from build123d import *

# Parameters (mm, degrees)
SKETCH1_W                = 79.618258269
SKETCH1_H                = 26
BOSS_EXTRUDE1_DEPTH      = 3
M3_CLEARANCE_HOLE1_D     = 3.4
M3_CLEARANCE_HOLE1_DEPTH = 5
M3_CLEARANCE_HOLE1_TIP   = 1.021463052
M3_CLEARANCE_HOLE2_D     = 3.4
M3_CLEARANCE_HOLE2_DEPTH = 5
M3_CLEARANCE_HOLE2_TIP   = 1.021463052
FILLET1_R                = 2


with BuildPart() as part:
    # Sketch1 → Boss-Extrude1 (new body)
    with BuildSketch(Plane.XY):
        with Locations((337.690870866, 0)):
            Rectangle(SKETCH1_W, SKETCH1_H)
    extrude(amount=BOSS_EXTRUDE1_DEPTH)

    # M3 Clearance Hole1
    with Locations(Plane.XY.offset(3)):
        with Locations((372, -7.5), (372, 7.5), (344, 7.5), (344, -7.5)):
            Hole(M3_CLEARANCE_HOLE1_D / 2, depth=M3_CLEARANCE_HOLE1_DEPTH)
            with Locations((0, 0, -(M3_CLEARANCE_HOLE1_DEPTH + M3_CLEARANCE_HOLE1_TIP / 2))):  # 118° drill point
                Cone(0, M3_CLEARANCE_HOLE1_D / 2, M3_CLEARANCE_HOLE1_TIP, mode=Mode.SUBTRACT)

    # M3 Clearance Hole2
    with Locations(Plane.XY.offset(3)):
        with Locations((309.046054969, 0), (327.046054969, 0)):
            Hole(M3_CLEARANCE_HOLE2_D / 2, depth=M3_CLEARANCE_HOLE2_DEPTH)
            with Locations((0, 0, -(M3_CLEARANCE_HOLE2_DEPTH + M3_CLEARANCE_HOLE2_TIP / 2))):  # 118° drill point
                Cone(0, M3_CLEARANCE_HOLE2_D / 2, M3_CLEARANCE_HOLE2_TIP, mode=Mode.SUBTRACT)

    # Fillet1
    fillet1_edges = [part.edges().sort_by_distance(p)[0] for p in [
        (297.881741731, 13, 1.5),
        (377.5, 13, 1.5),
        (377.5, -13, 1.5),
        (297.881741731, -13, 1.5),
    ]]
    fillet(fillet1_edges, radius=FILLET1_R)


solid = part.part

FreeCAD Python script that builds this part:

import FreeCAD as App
import Part
import Sketcher

V = App.Vector


def edges_at(feature, points):
    """Names of the edges that pass closest to the given points."""
    edges = feature.Shape.Edges
    near = lambda p: min(range(len(edges)), key=lambda i: edges[i].distToShape(Part.Vertex(*p))[0])
    return sorted({f"Edge{near(p) + 1}" for p in points})


def add_polygon(sketch, points):
    """Adds a closed chain of lines whose ends are joined by coincident constraints."""
    first, n = sketch.GeometryCount, len(points)
    for a, b in zip(points, points[1:] + points[:1]):
        sketch.addGeometry(Part.LineSegment(App.Vector(*a, 0), App.Vector(*b, 0)), False)
    for i in range(n):
        sketch.addConstraint(Sketcher.Constraint("Coincident", first + i, 2, first + (i + 1) % n, 1))

doc = App.newDocument("Part")
body = doc.addObject("PartDesign::Body", "Body")

# Sketch on XY plane
sketch1 = body.newObject("Sketcher::SketchObject", "Sketch")
sketch1.AttachmentSupport = (doc.getObject("XY_Plane"), [""])
sketch1.MapMode = "FlatFace"
add_polygon(sketch1, [(298, 13), (298, -13), (378, -13), (378, 13)])  # lines 0-3
sketch1.addConstraint([
    Sketcher.Constraint("Vertical", 0),
    Sketcher.Constraint("Horizontal", 1),
    Sketcher.Constraint("Vertical", 2),
    Sketcher.Constraint("Horizontal", 3),
    Sketcher.Constraint("DistanceY", 0, 2, 0, 1, 26.0),
    Sketcher.Constraint("DistanceY", 0, 2, -1, 1, 13.0),
    Sketcher.Constraint("DistanceX", -1, 1, 1, 2, 377.5),
    Sketcher.Constraint("DistanceX", 1, 1, 1, 2, 79.618258),
])
pad1 = body.newObject("PartDesign::Pad", "Pad")
pad1.Profile = sketch1
pad1.Length = 3

# Sketch on XY plane
sketch2 = body.newObject("Sketcher::SketchObject", "Sketch001")
sketch2.AttachmentSupport = (doc.getObject("XY_Plane"), [""])
sketch2.MapMode = "FlatFace"
sketch2.AttachmentOffset = App.Placement(V(0, 0, 3), App.Rotation())
sketch2.addGeometry([
    Part.Circle(V(372, -7.5, 0), V(0, 0, 1), 1.7),
    Part.Circle(V(372, 7.5, 0), V(0, 0, 1), 1.7),
    Part.Circle(V(344, 7.5, 0), V(0, 0, 1), 1.7),
    Part.Circle(V(344, -7.5, 0), V(0, 0, 1), 1.7),
], False)
sketch2.addConstraint([
    Sketcher.Constraint("Equal", 0, 1),
    Sketcher.Constraint("Equal", 1, 2),
    Sketcher.Constraint("Equal", 2, 3),
    Sketcher.Constraint("Symmetric", 0, 3, 1, 3, -1),
    Sketcher.Constraint("Symmetric", 2, 3, 3, 3, -1),
    Sketcher.Constraint("Horizontal", 1, 3, 2, 3),
    Sketcher.Constraint("Diameter", 0, 3.4),
    Sketcher.Constraint("DistanceX", -1, 1, 0, 3, 372.0),
    Sketcher.Constraint("DistanceX", -1, 1, 2, 3, 344.0),
    Sketcher.Constraint("DistanceY", 0, 3, 1, 3, 15.0),
])
doc.recompute()
hole = body.newObject("PartDesign::Hole", "Hole")
hole.Profile = sketch2
hole.ThreadType = "None"
hole.Diameter = 3.4
hole.DepthType = "Dimension"
hole.Depth = 5
hole.DrillPoint = "Angled"
hole.DrillPointAngle = 118

# Sketch on XY plane
sketch3 = body.newObject("Sketcher::SketchObject", "Sketch002")
sketch3.AttachmentSupport = (doc.getObject("XY_Plane"), [""])
sketch3.MapMode = "FlatFace"
sketch3.AttachmentOffset = App.Placement(V(0, 0, 3), App.Rotation())
sketch3.addGeometry([
    Part.Circle(V(309, 0, 0), V(0, 0, 1), 1.7),
    Part.Circle(V(327, 0, 0), V(0, 0, 1), 1.7),
], False)
sketch3.addConstraint([
    Sketcher.Constraint("Equal", 0, 1),
    Sketcher.Constraint("PointOnObject", 0, 3, -1),
    Sketcher.Constraint("PointOnObject", 1, 3, -1),
    Sketcher.Constraint("Diameter", 0, 3.4),
    Sketcher.Constraint("DistanceX", 0, 3, 1, 3, 18.0),
    Sketcher.Constraint("DistanceX", -1, 1, 0, 3, 309.046055),
])
doc.recompute()
hole2 = body.newObject("PartDesign::Hole", "Hole001")
hole2.Profile = sketch3
hole2.ThreadType = "None"
hole2.Diameter = 3.4
hole2.DepthType = "Dimension"
hole2.Depth = 5
hole2.DrillPoint = "Angled"
hole2.DrillPointAngle = 118
doc.recompute()

fillet = body.newObject("PartDesign::Fillet", "Fillet")
fillet.Base = (hole2, edges_at(hole2, [
    (297.882, 13, 1.5),
    (377.5, 13, 1.5),
    (377.5, -13, 1.5),
    (297.882, -13, 1.5),
]))
fillet.Radius = 2

doc.recompute()
